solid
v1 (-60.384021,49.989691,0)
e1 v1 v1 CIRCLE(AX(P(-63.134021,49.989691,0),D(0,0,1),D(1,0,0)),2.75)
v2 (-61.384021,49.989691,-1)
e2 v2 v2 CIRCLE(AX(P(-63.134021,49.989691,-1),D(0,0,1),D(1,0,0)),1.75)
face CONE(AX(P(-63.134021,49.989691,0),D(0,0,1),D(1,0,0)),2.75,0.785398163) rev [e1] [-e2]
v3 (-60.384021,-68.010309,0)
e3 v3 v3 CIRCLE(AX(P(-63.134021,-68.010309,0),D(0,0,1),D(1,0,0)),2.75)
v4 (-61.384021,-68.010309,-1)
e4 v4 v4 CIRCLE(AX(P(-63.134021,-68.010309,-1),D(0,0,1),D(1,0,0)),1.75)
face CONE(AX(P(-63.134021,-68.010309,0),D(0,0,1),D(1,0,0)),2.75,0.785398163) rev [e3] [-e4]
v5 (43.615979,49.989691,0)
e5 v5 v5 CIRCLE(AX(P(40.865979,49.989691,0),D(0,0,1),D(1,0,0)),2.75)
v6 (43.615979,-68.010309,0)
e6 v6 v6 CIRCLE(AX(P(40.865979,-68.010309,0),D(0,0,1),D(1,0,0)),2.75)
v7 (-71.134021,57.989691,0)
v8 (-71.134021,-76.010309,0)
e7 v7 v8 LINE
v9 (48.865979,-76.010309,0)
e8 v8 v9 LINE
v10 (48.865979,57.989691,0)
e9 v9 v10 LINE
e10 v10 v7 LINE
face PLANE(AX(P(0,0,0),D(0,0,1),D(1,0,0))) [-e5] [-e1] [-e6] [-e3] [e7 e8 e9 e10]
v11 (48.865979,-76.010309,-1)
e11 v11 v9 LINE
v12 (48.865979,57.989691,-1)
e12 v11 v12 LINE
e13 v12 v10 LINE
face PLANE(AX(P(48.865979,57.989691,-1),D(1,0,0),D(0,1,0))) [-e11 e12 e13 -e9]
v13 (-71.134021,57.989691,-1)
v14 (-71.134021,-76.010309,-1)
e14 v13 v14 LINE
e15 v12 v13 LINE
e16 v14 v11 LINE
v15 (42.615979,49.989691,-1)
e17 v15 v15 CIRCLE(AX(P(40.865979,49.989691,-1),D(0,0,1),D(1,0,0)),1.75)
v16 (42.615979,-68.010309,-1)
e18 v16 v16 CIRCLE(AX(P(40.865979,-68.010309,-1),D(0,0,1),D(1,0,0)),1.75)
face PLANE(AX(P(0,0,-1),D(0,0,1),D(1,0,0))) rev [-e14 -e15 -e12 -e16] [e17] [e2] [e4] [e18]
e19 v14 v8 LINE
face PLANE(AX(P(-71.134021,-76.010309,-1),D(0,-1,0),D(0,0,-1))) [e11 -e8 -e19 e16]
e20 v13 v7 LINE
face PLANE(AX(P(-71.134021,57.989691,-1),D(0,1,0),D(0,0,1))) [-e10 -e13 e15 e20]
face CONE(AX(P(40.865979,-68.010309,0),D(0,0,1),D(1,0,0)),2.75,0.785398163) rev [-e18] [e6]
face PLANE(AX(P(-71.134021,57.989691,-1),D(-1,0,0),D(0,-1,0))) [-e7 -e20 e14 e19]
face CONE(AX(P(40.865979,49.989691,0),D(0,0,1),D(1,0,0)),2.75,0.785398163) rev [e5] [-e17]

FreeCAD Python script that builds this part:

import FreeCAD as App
import Part
import Sketcher

V = App.Vector
Q = App.Units.Quantity

doc = App.newDocument("Part")
params = doc.addObject("Spreadsheet::Sheet", "Params")
for row, (alias, value) in enumerate([
    ("sketch1_width", "120 mm"),
    ("sketch1_height", "134 mm"),
    ("pad1_length", "1 mm"),
    ("sketch2_height", "0.3 mm"),
    ("sketch2_width", "2.75 mm"),
    ("groove_angle", "360 deg"),
    ("linearpattern_pitch", "118 mm"),
    ("linearpattern2_pitch", "157.289542 mm"),
    ("linearpattern3_pitch", "104 mm"),
], start=1):
    params.set(f"A{row}", alias)
    params.set(f"B{row}", "=" + value)
    params.setAlias(f"B{row}", alias)

body = doc.addObject("PartDesign::Body", "Body")

# Sketch on XY plane
sketch1 = body.newObject("Sketcher::SketchObject", "Sketch")
sketch1.AttachmentSupport = (doc.getObject("XY_Plane"), [""])
sketch1.MapMode = "FlatFace"
sketch1.addGeometry(Part.LineSegment(V(-71.134021, 57.989691, 0), V(-71.134021, -76.010309, 0)), False)
sketch1.addGeometry(Part.LineSegment(V(-71.134021, -76.010309, 0), V(48.865979, -76.010309, 0)), False)
sketch1.addGeometry(Part.LineSegment(V(48.865979, -76.010309, 0), V(48.865979, 57.989691, 0)), False)
sketch1.addGeometry(Part.LineSegment(V(48.865979, 57.989691, 0), V(-71.134021, 57.989691, 0)), False)
sketch1.addConstraint(Sketcher.Constraint("Coincident", 0, 2, 1, 1))
sketch1.addConstraint(Sketcher.Constraint("Coincident", 1, 2, 2, 1))
sketch1.addConstraint(Sketcher.Constraint("Coincident", 2, 2, 3, 1))
sketch1.addConstraint(Sketcher.Constraint("Coincident", 3, 2, 0, 1))
sketch1.addConstraint(Sketcher.Constraint("Vertical", 0))
sketch1.addConstraint(Sketcher.Constraint("Horizontal", 1))
sketch1.addConstraint(Sketcher.Constraint("Vertical", 2))
sketch1.addConstraint(Sketcher.Constraint("Horizontal", 3))
sketch1.addConstraint(Sketcher.Constraint("DistanceX", 1, 1, 1, 2, 120.0))
sketch1.addConstraint(Sketcher.Constraint("DistanceY", 0, 2, 0, 1, 134.0))
sketch1.addConstraint(Sketcher.Constraint("DistanceX", 0, 2, -1, 1, 71.134021))
sketch1.addConstraint(Sketcher.Constraint("DistanceY", 0, 2, -1, 1, 76.010309))
sketch1.setExpression("Constraints[8]", "Params.sketch1_width")
sketch1.setExpression("Constraints[9]", "Params.sketch1_height")
pad1 = body.newObject("PartDesign::Pad", "Pad")
pad1.Profile = sketch1
pad1.setExpression("Length", "Params.pad1_length")
pad1.Reversed = True

# Sketch on YZ plane
sketch2 = body.newObject("Sketcher::SketchObject", "Sketch001")
sketch2.AttachmentSupport = (doc.getObject("YZ_Plane"), [""])
sketch2.MapMode = "FlatFace"
sketch2.AttachmentOffset = App.Placement(V(0, 0, -63.134021), App.Rotation())
sketch2.addGeometry(Part.LineSegment(V(49.989691, -1.871248, 0), V(49.989691, 0, 0)), False)
sketch2.addGeometry(Part.LineSegment(V(49.989691, 0, 0), V(47.239691, 0, 0)), False)
sketch2.addGeometry(Part.LineSegment(V(47.239691, 0, 0), V(48.539691, -1.3, 0)), False)
sketch2.addGeometry(Part.LineSegment(V(48.539691, -1.3, 0), V(48.539691, -1, 0)), False)
sketch2.addGeometry(Part.LineSegment(V(48.539691, -1, 0), V(49.989691, -1.871248, 0)), False)
sketch2.addGeometry(Part.LineSegment(V(49.989691, 0, 0), V(49.989691, -1.871248, 0)), True)  # axis
sketch2.addConstraint(Sketcher.Constraint("Coincident", 0, 2, 1, 1))
sketch2.addConstraint(Sketcher.Constraint("Coincident", 1, 2, 2, 1))
sketch2.addConstraint(Sketcher.Constraint("Coincident", 2, 2, 3, 1))
sketch2.addConstraint(Sketcher.Constraint("Coincident", 3, 2, 4, 1))
sketch2.addConstraint(Sketcher.Constraint("Coincident", 4, 2, 0, 1))
sketch2.addConstraint(Sketcher.Constraint("Vertical", 0))
sketch2.addConstraint(Sketcher.Constraint("Horizontal", 1))
sketch2.addConstraint(Sketcher.Constraint("Vertical", 3))
sketch2.addConstraint(Sketcher.Constraint("Vertical", 5))
sketch2.addConstraint(Sketcher.Constraint("Coincident", 5, 1, 0, 2))
sketch2.addConstraint(Sketcher.Constraint("PointOnObject", 0, 2, -1))
sketch2.addConstraint(Sketcher.Constraint("Equal", 0, 5))
sketch2.addConstraint(Sketcher.Constraint("Angle", 2, Q("-45 deg")))
sketch2.addConstraint(Sketcher.Constraint("Angle", 4, Q("-31 deg")))
sketch2.addConstraint(Sketcher.Constraint("DistanceY", 3, 1, 3, 2, 0.3))
sketch2.addConstraint(Sketcher.Constraint("DistanceY", 3, 2, -1, 1, 1.0))
sketch2.addConstraint(Sketcher.Constraint("DistanceX", 1, 2, 1, 1, 2.75))
sketch2.addConstraint(Sketcher.Constraint("DistanceX", -1, 1, 0, 2, 49.989691))
sketch2.setExpression("Constraints[14]", "Params.sketch2_height")
sketch2.setExpression("Constraints[16]", "Params.sketch2_width")
groove = body.newObject("PartDesign::Groove", "Groove")
groove.Profile = sketch2
groove.ReferenceAxis = (sketch2, ["Axis0"])
groove.setExpression("Angle", "Params.groove_angle")
doc.recompute()

linearpattern = body.newObject("PartDesign::LinearPattern", "LinearPattern")
linearpattern.Originals = [groove]
linearpattern.Direction = (doc.getObject("Y_Axis"), [""])
linearpattern.Mode = "offset"
linearpattern.setExpression("Offset", "Params.linearpattern_pitch")
linearpattern.Occurrences = 2
linearpattern.Reversed = True
body.Tip = linearpattern
doc.recompute()

datumline = body.newObject("PartDesign::Line", "DatumLine")
datumline.Placement = App.Placement(V(0, 0, 0), App.Rotation(V(0, 0, 1), V(0.661200985, -0.75020881, 0)))
linearpattern2 = body.newObject("PartDesign::LinearPattern", "LinearPattern001")
linearpattern2.Originals = [groove]
linearpattern2.Direction = (datumline, [""])
linearpattern2.Mode = "offset"
linearpattern2.setExpression("Offset", "Params.linearpattern2_pitch")
linearpattern2.Occurrences = 2
body.Tip = linearpattern2
doc.recompute()

linearpattern3 = body.newObject("PartDesign::LinearPattern", "LinearPattern002")
linearpattern3.Originals = [groove]
linearpattern3.Direction = (doc.getObject("X_Axis"), [""])
linearpattern3.Mode = "offset"
linearpattern3.setExpression("Offset", "Params.linearpattern3_pitch")
linearpattern3.Occurrences = 2
body.Tip = linearpattern3

doc.recompute()
